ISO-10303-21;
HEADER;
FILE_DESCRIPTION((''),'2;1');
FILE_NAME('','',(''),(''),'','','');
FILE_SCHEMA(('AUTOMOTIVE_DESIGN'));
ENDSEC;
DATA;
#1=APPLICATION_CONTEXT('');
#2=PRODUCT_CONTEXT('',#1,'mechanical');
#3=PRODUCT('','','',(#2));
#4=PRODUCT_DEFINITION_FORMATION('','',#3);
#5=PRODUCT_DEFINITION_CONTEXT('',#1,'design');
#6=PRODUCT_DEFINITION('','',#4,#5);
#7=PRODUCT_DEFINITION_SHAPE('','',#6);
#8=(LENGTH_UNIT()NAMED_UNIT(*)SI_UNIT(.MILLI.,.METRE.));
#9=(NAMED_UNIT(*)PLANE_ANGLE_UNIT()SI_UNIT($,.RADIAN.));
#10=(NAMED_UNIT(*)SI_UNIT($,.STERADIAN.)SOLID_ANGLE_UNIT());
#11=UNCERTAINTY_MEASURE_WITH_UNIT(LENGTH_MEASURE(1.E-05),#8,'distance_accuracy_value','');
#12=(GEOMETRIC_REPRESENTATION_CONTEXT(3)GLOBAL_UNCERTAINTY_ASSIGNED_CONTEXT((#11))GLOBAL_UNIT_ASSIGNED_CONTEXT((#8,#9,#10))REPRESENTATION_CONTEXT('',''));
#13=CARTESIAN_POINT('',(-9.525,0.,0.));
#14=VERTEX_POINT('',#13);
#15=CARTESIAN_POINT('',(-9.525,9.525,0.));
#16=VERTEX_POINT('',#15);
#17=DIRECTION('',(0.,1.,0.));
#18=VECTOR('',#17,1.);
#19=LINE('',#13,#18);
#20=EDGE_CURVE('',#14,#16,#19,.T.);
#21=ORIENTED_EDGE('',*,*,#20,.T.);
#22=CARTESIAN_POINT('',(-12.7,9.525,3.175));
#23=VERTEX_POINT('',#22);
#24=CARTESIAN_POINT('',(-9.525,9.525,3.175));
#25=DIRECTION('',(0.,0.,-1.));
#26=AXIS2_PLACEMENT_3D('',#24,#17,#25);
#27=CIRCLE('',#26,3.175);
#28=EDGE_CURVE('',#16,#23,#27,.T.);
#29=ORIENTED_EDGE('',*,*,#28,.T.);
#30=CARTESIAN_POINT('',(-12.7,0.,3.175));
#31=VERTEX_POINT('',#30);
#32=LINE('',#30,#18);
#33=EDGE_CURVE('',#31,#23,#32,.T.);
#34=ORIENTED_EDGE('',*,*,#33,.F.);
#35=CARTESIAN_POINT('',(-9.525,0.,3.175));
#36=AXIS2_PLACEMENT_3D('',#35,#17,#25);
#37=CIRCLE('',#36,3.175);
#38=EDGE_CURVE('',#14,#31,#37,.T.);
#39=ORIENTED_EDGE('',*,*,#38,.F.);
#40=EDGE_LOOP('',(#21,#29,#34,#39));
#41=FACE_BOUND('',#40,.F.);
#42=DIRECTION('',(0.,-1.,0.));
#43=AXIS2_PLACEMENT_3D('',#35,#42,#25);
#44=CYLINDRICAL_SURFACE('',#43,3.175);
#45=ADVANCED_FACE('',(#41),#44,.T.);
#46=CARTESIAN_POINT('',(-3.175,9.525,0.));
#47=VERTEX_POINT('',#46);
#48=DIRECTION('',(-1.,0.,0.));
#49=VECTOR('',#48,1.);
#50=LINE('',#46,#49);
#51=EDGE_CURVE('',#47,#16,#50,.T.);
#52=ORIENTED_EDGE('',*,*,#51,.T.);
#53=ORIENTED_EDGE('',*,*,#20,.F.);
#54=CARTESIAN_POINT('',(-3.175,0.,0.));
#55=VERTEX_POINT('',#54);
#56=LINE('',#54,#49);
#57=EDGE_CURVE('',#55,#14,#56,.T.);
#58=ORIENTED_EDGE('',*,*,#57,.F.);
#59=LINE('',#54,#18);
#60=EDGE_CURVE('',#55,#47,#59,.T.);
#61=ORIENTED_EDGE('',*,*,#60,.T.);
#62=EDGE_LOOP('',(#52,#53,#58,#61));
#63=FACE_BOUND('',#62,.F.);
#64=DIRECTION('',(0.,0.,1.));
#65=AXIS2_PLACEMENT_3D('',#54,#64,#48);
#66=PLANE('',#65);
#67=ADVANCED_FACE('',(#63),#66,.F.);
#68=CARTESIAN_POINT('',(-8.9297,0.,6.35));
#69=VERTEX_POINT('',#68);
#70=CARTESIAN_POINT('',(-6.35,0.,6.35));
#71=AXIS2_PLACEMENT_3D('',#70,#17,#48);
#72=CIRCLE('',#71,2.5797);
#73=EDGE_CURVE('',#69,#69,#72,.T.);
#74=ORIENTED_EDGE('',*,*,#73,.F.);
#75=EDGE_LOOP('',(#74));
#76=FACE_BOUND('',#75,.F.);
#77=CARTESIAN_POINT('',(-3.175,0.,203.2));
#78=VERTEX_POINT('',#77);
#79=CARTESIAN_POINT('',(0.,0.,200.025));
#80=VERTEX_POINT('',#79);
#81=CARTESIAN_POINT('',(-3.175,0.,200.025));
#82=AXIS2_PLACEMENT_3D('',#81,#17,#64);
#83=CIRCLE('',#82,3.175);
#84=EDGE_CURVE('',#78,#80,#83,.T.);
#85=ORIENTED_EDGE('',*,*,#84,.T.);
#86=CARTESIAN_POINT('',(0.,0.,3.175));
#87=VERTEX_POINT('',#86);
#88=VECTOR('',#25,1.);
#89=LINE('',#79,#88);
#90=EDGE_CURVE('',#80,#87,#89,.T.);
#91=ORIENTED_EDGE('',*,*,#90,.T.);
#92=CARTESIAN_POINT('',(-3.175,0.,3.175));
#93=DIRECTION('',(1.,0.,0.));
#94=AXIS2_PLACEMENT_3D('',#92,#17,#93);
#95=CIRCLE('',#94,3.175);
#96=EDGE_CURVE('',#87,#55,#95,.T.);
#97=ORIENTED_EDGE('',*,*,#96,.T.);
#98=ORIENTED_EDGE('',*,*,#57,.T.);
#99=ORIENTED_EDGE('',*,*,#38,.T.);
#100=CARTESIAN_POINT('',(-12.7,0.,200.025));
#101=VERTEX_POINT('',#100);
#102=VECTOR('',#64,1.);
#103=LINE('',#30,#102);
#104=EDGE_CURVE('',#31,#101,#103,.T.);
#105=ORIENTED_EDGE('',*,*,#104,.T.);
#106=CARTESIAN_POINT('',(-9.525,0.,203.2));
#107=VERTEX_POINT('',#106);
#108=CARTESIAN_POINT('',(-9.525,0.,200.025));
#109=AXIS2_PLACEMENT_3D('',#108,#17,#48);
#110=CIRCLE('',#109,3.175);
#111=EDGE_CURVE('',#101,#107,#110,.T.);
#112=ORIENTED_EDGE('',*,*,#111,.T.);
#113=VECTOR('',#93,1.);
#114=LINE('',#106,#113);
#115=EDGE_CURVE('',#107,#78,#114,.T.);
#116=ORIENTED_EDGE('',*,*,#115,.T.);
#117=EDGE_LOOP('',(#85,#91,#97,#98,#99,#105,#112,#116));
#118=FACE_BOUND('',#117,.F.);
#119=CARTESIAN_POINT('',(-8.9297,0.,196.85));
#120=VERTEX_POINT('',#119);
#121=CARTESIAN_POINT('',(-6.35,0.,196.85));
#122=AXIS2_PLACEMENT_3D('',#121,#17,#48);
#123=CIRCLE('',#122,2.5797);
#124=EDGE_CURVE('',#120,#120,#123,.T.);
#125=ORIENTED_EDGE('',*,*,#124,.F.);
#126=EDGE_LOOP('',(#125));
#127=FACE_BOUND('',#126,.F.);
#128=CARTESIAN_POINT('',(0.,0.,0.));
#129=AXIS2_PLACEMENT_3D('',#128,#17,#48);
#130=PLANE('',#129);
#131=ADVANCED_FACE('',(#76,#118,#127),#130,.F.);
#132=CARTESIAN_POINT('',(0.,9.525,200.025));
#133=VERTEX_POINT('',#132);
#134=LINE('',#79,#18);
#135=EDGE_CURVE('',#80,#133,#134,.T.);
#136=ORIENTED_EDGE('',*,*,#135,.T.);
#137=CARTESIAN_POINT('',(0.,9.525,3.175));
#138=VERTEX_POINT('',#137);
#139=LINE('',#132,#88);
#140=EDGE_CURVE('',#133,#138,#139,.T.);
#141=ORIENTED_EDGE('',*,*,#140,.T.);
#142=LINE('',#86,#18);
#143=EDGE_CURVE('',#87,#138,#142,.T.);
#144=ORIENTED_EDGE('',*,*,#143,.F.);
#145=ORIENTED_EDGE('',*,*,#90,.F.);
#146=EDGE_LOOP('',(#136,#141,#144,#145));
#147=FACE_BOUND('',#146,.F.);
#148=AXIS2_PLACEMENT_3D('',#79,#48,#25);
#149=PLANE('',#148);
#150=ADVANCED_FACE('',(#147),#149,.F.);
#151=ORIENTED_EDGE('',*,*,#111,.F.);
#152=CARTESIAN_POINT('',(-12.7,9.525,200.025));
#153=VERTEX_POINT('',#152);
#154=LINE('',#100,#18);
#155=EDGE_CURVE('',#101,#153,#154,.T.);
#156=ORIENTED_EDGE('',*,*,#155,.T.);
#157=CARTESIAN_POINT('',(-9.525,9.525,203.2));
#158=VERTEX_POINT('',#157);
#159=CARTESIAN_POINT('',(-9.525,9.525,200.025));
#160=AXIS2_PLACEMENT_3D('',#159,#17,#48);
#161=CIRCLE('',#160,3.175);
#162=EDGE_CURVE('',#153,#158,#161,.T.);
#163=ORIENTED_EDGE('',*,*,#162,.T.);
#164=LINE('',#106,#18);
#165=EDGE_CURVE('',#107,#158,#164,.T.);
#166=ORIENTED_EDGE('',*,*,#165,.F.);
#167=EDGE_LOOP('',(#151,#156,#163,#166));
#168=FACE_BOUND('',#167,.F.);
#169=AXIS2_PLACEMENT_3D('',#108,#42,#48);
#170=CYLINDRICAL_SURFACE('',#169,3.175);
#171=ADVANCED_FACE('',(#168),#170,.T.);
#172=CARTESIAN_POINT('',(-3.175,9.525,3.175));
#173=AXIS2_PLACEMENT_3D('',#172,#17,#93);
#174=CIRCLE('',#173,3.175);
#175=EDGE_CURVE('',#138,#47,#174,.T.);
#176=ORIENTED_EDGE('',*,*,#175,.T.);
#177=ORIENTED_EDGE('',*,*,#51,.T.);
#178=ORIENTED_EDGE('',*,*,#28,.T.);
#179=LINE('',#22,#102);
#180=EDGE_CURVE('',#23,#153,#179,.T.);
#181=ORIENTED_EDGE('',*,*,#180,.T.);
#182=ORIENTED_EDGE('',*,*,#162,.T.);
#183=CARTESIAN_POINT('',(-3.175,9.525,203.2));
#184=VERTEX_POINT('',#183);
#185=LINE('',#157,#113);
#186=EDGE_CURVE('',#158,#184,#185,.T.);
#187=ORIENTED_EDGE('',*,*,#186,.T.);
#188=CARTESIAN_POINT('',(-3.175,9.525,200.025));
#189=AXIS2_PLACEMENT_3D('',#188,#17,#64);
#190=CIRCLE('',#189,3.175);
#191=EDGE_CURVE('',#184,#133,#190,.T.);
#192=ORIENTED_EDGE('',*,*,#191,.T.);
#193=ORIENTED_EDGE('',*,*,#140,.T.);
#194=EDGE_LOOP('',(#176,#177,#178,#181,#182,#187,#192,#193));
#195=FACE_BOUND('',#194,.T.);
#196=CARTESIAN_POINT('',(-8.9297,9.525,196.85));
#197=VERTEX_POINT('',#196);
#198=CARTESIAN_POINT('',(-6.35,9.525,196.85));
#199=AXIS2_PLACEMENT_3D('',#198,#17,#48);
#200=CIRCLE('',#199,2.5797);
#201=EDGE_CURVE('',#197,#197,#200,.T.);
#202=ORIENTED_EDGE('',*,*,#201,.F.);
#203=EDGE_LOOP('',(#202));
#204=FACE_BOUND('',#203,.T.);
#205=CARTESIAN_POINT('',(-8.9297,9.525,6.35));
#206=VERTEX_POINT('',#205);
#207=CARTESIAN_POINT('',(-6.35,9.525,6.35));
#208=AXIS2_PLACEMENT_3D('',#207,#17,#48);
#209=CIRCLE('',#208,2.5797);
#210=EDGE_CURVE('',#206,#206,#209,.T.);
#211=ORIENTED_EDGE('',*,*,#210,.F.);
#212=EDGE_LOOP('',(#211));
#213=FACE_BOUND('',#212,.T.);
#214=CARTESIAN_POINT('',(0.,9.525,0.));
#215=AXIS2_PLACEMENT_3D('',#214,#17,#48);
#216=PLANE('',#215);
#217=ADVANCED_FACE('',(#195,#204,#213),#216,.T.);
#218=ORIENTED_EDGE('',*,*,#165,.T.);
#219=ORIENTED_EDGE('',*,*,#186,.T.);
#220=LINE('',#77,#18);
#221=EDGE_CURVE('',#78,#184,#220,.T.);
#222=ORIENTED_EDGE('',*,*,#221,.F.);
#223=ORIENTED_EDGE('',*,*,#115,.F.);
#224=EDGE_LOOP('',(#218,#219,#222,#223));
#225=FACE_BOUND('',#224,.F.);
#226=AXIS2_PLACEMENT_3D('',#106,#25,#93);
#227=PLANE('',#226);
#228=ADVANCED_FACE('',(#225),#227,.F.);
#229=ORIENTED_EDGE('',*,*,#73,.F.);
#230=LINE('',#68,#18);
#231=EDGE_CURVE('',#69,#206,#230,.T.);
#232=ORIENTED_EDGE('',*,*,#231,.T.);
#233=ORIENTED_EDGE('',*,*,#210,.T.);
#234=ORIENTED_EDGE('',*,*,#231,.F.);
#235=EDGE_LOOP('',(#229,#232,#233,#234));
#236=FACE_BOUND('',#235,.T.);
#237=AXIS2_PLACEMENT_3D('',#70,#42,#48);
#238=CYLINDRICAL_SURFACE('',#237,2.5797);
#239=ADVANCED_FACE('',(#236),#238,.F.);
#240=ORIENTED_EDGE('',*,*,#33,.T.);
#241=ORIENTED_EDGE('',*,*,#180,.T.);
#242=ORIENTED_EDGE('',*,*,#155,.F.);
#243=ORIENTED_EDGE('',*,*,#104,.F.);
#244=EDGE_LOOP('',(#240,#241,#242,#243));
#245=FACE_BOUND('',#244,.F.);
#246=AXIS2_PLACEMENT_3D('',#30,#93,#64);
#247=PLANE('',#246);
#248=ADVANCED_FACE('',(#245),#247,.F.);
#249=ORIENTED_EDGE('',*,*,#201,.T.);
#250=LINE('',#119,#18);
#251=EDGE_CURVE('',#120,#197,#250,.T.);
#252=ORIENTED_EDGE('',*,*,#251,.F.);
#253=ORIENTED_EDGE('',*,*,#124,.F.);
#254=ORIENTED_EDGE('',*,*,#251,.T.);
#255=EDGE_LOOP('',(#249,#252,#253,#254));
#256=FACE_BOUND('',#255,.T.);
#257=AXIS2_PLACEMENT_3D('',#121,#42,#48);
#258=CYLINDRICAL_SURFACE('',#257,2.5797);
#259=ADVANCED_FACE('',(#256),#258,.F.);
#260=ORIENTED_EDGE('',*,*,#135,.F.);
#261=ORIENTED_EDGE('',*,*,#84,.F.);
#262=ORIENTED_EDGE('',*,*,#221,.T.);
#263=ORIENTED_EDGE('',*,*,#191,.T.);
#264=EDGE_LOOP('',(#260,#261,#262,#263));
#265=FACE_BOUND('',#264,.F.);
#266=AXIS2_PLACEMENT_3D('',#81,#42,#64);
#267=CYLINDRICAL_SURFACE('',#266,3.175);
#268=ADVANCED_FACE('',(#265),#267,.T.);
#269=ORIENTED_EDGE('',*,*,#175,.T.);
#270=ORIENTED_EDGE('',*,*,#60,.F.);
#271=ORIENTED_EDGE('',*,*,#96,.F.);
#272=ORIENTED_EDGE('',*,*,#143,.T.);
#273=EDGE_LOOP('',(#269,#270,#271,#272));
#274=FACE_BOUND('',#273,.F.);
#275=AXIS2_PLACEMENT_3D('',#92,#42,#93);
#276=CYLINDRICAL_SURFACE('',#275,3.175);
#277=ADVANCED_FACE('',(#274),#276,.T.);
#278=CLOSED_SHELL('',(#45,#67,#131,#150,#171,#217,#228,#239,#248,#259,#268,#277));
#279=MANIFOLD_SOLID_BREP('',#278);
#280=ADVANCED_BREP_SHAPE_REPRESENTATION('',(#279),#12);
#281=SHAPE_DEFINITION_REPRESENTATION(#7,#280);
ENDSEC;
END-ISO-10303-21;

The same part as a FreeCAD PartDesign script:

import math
import FreeCAD as App
import Part
import Sketcher

V = App.Vector
Q = App.Units.Quantity

doc = App.newDocument("Part")
params = doc.addObject("Spreadsheet::Sheet", "Params")
for row, (alias, value) in enumerate([
    ("sketch1_diameter", "0.203126 in"),
    ("sketch1_radius", "0.125 in"),
    ("sketch1_width", "0.25 in"),
    ("pad1_length", "0.375 in"),
], start=1):
    params.set(f"A{row}", alias)
    params.set(f"B{row}", "=" + value)
    params.setAlias(f"B{row}", alias)

body = doc.addObject("PartDesign::Body", "Body")

# Sketch on XZ plane
sketch1 = doc.addObject("Sketcher::SketchObject", "Sketch")
body.addObject(sketch1)
sketch1.AttachmentSupport = (doc.XZ_Plane, [""])
sketch1.MapMode = "FlatFace"
sketch1.addGeometry([
    Part.ArcOfCircle(Part.Circle(V(-3.2, 3.2, 0), V(0, 0, 1), 3.2), math.radians(-90), math.radians(0)),  # 0
    Part.LineSegment(V(-3.2, 0, 0), V(-9.5, 0, 0)),  # 1
    Part.ArcOfCircle(Part.Circle(V(-9.5, 3.2, 0), V(0, 0, 1), 3.2), math.radians(180), math.radians(270)),  # 2
    Part.LineSegment(V(-12.7, 3.2, 0), V(-12.7, 200, 0)),  # 3
    Part.ArcOfCircle(Part.Circle(V(-9.5, 200, 0), V(0, 0, 1), 3.2), math.radians(90), math.radians(180)),  # 4
    Part.LineSegment(V(-9.5, 203.2, 0), V(-3.2, 203.2, 0)),  # 5
    Part.ArcOfCircle(Part.Circle(V(-3.2, 200, 0), V(0, 0, 1), 3.2), math.radians(0), math.radians(90)),  # 6
    Part.LineSegment(V(0, 200, 0), V(0, 3.2, 0)),  # 7
    Part.Circle(V(-6.3, 6.3, 0), V(0, 0, 1), 2.6),  # 8
    Part.Circle(V(-6.3, 196.8, 0), V(0, 0, 1), 2.6),  # 9
], False)
sketch1.addConstraint([
    Sketcher.Constraint("Tangent", 0, 1, 1, 1),
    Sketcher.Constraint("Tangent", 1, 2, 2, 2),
    Sketcher.Constraint("Tangent", 2, 1, 3, 1),
    Sketcher.Constraint("Tangent", 3, 2, 4, 2),
    Sketcher.Constraint("Tangent", 4, 1, 5, 1),
    Sketcher.Constraint("Tangent", 5, 2, 6, 2),
    Sketcher.Constraint("Tangent", 6, 1, 7, 1),
    Sketcher.Constraint("Tangent", 7, 2, 0, 2),
    Sketcher.Constraint("Horizontal", 1),
    Sketcher.Constraint("Vertical", 3),
    Sketcher.Constraint("Horizontal", 5),
    Sketcher.Constraint("Vertical", 7),
    Sketcher.Constraint("Equal", 0, 2),
    Sketcher.Constraint("Equal", 2, 4),
    Sketcher.Constraint("Equal", 4, 6),
    Sketcher.Constraint("Equal", 8, 9),
    Sketcher.Constraint("PointOnObject", 0, 1, -1),
    Sketcher.Constraint("PointOnObject", 6, 1, -2),
    Sketcher.Constraint("Vertical", 8, 3, 9, 3),
    Sketcher.Constraint("Diameter", 8, Q("0.203126 in")),
    Sketcher.Constraint("DistanceY", -1, 1, 4, 1, Q("8 in")),
    Sketcher.Constraint("Radius", 0, Q("0.125 in")),
    Sketcher.Constraint("DistanceX", 1, 2, 1, 1, Q("0.25 in")),
    Sketcher.Constraint("DistanceX", 8, 3, -1, 1, Q("0.25 in")),
    Sketcher.Constraint("DistanceY", -1, 1, 8, 3, Q("0.25 in")),
    Sketcher.Constraint("DistanceY", 9, 3, 4, 1, Q("0.25 in")),
])
sketch1.setExpression("Constraints[19]", "Params.sketch1_diameter")
sketch1.setExpression("Constraints[21]", "Params.sketch1_radius")
sketch1.setExpression("Constraints[22]", "Params.sketch1_width")
pad1 = doc.addObject("PartDesign::Pad", "Pad")
body.addObject(pad1)
pad1.Profile = sketch1
pad1.setExpression("Length", "Params.pad1_length")
pad1.Reversed = True

doc.recompute()
